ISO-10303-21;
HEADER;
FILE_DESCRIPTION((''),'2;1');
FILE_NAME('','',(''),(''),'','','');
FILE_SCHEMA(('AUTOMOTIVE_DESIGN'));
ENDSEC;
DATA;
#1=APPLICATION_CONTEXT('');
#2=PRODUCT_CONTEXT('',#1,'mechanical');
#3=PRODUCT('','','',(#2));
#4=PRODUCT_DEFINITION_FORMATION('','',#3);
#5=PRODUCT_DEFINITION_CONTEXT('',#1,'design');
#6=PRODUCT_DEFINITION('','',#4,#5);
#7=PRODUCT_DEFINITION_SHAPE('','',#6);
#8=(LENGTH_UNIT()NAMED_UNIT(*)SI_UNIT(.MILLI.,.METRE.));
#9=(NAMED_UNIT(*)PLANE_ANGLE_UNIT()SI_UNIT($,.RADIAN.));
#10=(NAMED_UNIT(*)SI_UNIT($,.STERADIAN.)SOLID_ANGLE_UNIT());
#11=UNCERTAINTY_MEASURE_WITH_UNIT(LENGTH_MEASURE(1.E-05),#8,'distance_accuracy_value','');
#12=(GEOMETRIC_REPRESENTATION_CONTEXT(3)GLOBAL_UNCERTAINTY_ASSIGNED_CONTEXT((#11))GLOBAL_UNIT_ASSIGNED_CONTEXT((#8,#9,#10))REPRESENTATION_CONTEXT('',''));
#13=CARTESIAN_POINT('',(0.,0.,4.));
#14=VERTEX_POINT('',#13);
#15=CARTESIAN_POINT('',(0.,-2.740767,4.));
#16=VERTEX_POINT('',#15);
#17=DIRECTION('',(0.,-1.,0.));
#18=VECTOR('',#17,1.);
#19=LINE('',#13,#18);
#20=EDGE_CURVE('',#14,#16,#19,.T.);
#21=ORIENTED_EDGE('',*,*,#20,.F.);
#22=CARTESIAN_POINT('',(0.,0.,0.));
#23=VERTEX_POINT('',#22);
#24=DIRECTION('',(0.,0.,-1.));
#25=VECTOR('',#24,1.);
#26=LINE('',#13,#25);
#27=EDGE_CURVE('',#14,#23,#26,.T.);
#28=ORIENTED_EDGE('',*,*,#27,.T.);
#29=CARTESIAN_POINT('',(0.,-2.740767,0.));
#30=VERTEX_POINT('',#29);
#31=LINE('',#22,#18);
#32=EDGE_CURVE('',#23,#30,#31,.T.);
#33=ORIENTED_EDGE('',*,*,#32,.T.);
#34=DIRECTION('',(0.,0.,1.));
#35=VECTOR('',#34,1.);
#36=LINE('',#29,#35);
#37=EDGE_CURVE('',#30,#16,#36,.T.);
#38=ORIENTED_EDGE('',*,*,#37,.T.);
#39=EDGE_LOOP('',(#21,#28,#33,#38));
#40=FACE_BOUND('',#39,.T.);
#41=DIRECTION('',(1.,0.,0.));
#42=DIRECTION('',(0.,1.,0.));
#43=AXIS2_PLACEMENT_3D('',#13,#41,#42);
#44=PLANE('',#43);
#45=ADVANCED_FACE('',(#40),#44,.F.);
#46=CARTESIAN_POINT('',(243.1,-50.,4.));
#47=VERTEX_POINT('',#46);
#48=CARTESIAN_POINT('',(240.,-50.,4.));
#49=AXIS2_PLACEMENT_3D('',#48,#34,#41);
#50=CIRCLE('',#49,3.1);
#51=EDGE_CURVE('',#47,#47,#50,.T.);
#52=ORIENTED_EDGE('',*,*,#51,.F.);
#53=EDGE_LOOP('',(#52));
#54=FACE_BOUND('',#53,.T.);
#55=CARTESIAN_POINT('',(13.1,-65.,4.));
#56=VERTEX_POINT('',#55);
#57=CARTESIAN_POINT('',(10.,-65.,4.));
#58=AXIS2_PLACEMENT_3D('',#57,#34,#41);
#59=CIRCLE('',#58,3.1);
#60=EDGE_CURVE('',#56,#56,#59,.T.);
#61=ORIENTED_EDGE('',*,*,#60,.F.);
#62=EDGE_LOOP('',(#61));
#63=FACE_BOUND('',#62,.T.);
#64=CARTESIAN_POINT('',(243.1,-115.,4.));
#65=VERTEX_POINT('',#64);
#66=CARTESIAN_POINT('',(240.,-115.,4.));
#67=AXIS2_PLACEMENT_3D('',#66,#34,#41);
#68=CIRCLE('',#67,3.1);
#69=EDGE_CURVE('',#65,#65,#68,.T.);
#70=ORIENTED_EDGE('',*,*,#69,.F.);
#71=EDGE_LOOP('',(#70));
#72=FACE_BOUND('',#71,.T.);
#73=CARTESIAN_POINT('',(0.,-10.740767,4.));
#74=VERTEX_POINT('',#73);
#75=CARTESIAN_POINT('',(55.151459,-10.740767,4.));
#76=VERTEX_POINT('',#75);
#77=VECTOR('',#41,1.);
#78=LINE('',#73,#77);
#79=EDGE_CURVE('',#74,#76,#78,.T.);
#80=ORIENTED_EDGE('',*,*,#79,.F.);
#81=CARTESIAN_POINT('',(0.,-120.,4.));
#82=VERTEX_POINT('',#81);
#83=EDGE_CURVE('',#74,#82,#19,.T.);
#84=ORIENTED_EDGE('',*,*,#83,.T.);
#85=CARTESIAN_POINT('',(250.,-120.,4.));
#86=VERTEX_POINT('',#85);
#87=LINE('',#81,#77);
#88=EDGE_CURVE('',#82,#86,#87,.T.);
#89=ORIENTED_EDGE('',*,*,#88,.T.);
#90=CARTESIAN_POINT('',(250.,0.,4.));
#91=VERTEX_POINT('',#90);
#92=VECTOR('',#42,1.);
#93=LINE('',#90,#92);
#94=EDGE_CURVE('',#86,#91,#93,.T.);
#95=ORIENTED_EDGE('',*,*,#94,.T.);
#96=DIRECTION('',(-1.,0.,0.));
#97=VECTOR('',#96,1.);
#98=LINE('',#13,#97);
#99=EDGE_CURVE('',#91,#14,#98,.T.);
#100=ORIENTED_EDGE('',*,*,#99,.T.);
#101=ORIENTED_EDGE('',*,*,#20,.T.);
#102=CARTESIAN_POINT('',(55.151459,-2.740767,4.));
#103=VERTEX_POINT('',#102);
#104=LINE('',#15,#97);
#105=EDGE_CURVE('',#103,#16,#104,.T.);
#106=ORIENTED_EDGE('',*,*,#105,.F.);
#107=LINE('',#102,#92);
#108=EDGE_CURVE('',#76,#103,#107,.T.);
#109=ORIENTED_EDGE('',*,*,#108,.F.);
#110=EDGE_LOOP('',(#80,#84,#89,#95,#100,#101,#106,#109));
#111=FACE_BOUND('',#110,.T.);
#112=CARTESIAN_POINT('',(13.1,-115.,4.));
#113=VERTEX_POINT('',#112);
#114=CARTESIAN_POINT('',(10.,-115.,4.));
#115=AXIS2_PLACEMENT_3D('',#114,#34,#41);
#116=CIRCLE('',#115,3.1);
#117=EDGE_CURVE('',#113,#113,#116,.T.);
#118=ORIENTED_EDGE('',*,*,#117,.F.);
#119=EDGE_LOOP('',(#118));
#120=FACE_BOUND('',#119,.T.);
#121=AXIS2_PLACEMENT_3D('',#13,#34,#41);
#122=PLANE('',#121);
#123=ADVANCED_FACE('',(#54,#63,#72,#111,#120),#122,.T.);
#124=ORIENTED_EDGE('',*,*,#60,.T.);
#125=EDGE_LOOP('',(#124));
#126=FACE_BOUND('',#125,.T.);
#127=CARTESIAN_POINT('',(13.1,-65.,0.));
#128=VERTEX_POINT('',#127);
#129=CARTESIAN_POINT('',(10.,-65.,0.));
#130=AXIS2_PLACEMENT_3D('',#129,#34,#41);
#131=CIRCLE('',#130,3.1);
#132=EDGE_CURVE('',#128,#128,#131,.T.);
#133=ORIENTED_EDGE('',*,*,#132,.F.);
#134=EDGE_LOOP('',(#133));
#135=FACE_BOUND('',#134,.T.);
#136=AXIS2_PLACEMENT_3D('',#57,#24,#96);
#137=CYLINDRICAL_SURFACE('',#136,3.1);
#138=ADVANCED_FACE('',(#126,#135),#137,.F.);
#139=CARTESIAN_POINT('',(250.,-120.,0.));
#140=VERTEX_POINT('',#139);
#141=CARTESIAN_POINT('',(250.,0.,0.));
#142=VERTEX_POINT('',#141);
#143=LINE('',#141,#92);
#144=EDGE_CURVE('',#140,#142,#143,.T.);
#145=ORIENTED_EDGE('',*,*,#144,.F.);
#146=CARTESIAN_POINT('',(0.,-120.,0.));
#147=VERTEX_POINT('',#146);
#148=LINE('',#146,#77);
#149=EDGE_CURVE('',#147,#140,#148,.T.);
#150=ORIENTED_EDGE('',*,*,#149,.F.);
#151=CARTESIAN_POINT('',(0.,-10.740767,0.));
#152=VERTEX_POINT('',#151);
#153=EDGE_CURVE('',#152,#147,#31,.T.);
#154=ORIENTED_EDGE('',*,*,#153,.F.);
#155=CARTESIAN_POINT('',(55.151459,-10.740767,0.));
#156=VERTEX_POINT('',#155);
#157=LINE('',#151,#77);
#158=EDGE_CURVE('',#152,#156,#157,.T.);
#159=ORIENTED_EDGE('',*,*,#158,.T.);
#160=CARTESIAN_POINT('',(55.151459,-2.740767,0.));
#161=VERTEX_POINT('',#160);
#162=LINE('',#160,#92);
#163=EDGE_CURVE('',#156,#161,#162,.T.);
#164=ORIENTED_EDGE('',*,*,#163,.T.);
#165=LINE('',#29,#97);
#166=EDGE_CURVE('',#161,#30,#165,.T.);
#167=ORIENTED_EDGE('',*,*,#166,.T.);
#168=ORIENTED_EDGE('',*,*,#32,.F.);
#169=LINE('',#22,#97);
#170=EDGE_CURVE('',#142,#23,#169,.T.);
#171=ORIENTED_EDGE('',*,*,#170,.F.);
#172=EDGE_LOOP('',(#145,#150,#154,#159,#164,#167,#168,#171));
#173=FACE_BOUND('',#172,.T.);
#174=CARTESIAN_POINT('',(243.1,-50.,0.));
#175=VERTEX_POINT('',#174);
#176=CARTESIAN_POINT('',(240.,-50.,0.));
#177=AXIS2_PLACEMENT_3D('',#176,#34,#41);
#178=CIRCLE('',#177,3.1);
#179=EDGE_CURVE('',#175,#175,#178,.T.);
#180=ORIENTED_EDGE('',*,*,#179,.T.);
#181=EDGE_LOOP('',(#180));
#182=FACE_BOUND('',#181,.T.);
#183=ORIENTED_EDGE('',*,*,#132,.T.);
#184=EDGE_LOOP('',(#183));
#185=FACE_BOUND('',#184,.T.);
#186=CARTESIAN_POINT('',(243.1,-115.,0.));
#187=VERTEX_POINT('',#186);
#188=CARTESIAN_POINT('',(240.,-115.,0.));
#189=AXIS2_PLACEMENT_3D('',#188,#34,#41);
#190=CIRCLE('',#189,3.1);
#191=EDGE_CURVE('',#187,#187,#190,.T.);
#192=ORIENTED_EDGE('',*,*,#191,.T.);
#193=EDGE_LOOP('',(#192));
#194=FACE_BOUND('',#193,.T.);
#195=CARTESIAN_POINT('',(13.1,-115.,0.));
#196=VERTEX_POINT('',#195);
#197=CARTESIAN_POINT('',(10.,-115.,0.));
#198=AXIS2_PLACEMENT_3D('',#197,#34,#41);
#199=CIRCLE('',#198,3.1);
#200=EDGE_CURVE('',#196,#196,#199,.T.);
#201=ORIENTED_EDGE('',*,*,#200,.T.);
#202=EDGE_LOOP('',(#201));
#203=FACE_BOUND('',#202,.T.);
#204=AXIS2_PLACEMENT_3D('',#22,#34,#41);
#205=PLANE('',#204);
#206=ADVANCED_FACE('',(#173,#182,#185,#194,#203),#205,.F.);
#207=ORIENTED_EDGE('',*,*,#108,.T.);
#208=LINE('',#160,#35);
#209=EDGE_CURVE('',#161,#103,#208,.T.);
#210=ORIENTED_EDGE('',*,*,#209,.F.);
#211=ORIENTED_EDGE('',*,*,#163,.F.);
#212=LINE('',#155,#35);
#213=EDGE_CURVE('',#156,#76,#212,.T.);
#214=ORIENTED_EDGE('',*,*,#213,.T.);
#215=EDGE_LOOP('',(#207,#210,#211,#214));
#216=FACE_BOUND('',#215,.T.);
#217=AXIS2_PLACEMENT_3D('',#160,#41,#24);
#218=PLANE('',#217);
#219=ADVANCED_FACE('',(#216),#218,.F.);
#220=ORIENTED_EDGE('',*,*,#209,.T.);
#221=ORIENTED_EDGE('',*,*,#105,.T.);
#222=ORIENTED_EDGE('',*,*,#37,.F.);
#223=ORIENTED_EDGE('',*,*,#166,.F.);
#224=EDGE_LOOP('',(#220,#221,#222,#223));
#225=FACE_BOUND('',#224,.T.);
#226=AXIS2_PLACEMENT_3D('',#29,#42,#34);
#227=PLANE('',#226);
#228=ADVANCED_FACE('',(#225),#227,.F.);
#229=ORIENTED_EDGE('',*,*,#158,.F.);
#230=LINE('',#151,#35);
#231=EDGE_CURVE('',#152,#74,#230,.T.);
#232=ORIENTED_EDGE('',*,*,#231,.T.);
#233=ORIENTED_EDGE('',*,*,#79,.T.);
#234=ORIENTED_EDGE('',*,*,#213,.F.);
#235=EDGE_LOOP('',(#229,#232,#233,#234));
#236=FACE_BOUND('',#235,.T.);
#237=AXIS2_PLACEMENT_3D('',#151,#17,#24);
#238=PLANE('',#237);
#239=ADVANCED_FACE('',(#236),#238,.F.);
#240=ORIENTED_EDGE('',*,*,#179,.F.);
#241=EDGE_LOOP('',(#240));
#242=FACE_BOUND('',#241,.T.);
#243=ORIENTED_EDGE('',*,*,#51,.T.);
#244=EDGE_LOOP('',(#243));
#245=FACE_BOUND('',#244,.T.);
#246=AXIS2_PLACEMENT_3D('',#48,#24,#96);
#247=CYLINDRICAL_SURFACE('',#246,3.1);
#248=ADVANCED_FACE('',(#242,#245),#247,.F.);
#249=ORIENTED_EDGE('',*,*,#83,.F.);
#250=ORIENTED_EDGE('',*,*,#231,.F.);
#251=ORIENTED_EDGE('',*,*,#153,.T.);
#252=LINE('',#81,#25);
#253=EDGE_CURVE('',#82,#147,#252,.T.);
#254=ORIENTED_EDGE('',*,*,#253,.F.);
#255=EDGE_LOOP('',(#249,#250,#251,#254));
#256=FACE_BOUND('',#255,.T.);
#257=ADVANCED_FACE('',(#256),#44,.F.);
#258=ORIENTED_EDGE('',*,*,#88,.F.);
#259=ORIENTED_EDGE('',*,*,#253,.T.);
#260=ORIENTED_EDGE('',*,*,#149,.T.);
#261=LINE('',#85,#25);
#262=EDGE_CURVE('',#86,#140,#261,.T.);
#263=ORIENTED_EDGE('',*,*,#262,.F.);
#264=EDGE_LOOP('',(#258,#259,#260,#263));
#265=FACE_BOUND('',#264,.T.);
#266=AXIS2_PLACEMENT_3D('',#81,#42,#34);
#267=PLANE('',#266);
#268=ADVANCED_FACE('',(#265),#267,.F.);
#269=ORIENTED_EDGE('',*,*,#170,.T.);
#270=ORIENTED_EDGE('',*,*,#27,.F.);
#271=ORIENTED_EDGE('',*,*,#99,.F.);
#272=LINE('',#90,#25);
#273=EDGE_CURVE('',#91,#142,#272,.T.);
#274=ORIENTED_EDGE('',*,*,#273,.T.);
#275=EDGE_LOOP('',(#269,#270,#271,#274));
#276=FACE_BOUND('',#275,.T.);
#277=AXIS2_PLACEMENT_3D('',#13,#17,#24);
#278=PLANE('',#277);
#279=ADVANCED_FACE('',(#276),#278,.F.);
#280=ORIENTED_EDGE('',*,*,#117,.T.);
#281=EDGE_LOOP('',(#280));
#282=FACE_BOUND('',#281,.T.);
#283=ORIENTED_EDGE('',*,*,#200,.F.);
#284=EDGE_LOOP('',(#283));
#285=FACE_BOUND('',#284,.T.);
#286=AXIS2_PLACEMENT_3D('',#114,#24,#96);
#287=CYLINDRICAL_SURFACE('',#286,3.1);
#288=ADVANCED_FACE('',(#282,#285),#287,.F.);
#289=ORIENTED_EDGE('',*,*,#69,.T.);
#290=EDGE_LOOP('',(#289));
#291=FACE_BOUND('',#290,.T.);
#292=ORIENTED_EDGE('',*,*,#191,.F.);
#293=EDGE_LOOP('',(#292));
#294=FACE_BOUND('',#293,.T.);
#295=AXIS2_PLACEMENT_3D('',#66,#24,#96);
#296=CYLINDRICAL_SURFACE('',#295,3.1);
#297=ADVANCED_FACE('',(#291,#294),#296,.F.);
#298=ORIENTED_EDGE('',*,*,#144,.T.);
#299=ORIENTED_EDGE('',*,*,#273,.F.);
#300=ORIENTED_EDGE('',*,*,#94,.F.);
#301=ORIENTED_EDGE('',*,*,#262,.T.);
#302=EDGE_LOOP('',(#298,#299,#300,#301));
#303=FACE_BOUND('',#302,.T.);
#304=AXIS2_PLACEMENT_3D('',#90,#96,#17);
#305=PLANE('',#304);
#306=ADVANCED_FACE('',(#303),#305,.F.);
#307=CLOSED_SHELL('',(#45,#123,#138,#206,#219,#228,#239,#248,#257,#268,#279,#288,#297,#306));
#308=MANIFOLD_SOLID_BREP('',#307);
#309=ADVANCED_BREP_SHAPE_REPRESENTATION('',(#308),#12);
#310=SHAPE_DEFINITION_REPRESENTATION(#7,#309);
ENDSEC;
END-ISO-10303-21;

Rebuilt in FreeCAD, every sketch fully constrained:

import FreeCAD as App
import Part
import Sketcher
Q = App.Units.Quantity


def add_polygon(sketch, points):
    """Adds a closed chain of lines whose ends are joined by coincident constraints."""
    first, n = sketch.GeometryCount, len(points)
    for a, b in zip(points, points[1:] + points[:1]):
        sketch.addGeometry(Part.LineSegment(App.Vector(*a, 0), App.Vector(*b, 0)), False)
    for i in range(n):
        sketch.addConstraint(Sketcher.Constraint("Coincident", first + i, 2, first + (i + 1) % n, 1))

doc = App.newDocument("Part")
body = doc.addObject("PartDesign::Body", "Body")

sketch1 = body.newObject("Sketcher::SketchObject", "Sketch")
sketch1.AttachmentSupport = (doc.getObject("XY_Plane"), [""])
sketch1.MapMode = "FlatFace"
add_polygon(sketch1, [(0, 0), (0, -120), (250, -120), (250, 0)])
sketch1.addGeometry(Part.Circle(App.Vector(10, -115, 0), App.Vector(0, 0, 1), 3.1), False)
sketch1.addGeometry(Part.Circle(App.Vector(240, -115, 0), App.Vector(0, 0, 1), 3.1), False)
sketch1.addGeometry(Part.Circle(App.Vector(10, -65, 0), App.Vector(0, 0, 1), 3.1), False)
sketch1.addGeometry(Part.Circle(App.Vector(240, -50, 0), App.Vector(0, 0, 1), 3.1), False)
sketch1.addConstraint(Sketcher.Constraint("Vertical", 0))
sketch1.addConstraint(Sketcher.Constraint("Horizontal", 1))
sketch1.addConstraint(Sketcher.Constraint("Vertical", 2))
sketch1.addConstraint(Sketcher.Constraint("Horizontal", 3))
sketch1.addConstraint(Sketcher.Constraint("Coincident", 3, 2, -1, 1))
sketch1.addConstraint(Sketcher.Constraint("Equal", 4, 5))
sketch1.addConstraint(Sketcher.Constraint("Equal", 5, 6))
sketch1.addConstraint(Sketcher.Constraint("Equal", 6, 7))
sketch1.addConstraint(Sketcher.Constraint("Horizontal", 4, 3, 5, 3))
sketch1.addConstraint(Sketcher.Constraint("Vertical", 4, 3, 6, 3))
sketch1.addConstraint(Sketcher.Constraint("Vertical", 5, 3, 7, 3))
sketch1.addConstraint(Sketcher.Constraint("Diameter", 4, Q("6.2 mm")))
sketch1.addConstraint(Sketcher.Constraint("DistanceX", 1, 1, 1, 2, Q("250 mm")))
sketch1.addConstraint(Sketcher.Constraint("DistanceY", 0, 2, 0, 1, Q("120 mm")))
sketch1.addConstraint(Sketcher.Constraint("DistanceX", -1, 1, 4, 3, Q("10 mm")))
sketch1.addConstraint(Sketcher.Constraint("DistanceY", 4, 3, -1, 1, Q("115 mm")))
sketch1.addConstraint(Sketcher.Constraint("DistanceX", -1, 1, 5, 3, Q("240 mm")))
sketch1.addConstraint(Sketcher.Constraint("DistanceY", 6, 3, -1, 1, Q("65 mm")))
sketch1.addConstraint(Sketcher.Constraint("DistanceY", 7, 3, -1, 1, Q("50 mm")))
pad1 = body.newObject("PartDesign::Pad", "Pad")
pad1.Profile = sketch1
pad1.Length = 4

sketch2 = body.newObject("Sketcher::SketchObject", "Sketch001")
sketch2.AttachmentSupport = (doc.getObject("XY_Plane"), [""])
sketch2.MapMode = "FlatFace"
sketch2.AttachmentOffset = App.Placement(App.Vector(0, 0, 4), App.Rotation())
add_polygon(sketch2, [(0, -2.740767), (0, -10.740767), (55.151459, -10.740767), (55.151459, -2.740767)])
sketch2.addConstraint(Sketcher.Constraint("Vertical", 0))
sketch2.addConstraint(Sketcher.Constraint("Horizontal", 1))
sketch2.addConstraint(Sketcher.Constraint("Vertical", 2))
sketch2.addConstraint(Sketcher.Constraint("Horizontal", 3))
sketch2.addConstraint(Sketcher.Constraint("PointOnObject", 0, 2, -2))
sketch2.addConstraint(Sketcher.Constraint("DistanceY", 0, 2, 0, 1, Q("8 mm")))
sketch2.addConstraint(Sketcher.Constraint("DistanceX", 1, 1, 1, 2, Q("55.151459 mm")))
sketch2.addConstraint(Sketcher.Constraint("DistanceY", 0, 2, -1, 1, Q("10.740767 mm")))
pocket1 = body.newObject("PartDesign::Pocket", "Pocket")
pocket1.Profile = sketch2
pocket1.Type = "ThroughAll"

doc.recompute()
